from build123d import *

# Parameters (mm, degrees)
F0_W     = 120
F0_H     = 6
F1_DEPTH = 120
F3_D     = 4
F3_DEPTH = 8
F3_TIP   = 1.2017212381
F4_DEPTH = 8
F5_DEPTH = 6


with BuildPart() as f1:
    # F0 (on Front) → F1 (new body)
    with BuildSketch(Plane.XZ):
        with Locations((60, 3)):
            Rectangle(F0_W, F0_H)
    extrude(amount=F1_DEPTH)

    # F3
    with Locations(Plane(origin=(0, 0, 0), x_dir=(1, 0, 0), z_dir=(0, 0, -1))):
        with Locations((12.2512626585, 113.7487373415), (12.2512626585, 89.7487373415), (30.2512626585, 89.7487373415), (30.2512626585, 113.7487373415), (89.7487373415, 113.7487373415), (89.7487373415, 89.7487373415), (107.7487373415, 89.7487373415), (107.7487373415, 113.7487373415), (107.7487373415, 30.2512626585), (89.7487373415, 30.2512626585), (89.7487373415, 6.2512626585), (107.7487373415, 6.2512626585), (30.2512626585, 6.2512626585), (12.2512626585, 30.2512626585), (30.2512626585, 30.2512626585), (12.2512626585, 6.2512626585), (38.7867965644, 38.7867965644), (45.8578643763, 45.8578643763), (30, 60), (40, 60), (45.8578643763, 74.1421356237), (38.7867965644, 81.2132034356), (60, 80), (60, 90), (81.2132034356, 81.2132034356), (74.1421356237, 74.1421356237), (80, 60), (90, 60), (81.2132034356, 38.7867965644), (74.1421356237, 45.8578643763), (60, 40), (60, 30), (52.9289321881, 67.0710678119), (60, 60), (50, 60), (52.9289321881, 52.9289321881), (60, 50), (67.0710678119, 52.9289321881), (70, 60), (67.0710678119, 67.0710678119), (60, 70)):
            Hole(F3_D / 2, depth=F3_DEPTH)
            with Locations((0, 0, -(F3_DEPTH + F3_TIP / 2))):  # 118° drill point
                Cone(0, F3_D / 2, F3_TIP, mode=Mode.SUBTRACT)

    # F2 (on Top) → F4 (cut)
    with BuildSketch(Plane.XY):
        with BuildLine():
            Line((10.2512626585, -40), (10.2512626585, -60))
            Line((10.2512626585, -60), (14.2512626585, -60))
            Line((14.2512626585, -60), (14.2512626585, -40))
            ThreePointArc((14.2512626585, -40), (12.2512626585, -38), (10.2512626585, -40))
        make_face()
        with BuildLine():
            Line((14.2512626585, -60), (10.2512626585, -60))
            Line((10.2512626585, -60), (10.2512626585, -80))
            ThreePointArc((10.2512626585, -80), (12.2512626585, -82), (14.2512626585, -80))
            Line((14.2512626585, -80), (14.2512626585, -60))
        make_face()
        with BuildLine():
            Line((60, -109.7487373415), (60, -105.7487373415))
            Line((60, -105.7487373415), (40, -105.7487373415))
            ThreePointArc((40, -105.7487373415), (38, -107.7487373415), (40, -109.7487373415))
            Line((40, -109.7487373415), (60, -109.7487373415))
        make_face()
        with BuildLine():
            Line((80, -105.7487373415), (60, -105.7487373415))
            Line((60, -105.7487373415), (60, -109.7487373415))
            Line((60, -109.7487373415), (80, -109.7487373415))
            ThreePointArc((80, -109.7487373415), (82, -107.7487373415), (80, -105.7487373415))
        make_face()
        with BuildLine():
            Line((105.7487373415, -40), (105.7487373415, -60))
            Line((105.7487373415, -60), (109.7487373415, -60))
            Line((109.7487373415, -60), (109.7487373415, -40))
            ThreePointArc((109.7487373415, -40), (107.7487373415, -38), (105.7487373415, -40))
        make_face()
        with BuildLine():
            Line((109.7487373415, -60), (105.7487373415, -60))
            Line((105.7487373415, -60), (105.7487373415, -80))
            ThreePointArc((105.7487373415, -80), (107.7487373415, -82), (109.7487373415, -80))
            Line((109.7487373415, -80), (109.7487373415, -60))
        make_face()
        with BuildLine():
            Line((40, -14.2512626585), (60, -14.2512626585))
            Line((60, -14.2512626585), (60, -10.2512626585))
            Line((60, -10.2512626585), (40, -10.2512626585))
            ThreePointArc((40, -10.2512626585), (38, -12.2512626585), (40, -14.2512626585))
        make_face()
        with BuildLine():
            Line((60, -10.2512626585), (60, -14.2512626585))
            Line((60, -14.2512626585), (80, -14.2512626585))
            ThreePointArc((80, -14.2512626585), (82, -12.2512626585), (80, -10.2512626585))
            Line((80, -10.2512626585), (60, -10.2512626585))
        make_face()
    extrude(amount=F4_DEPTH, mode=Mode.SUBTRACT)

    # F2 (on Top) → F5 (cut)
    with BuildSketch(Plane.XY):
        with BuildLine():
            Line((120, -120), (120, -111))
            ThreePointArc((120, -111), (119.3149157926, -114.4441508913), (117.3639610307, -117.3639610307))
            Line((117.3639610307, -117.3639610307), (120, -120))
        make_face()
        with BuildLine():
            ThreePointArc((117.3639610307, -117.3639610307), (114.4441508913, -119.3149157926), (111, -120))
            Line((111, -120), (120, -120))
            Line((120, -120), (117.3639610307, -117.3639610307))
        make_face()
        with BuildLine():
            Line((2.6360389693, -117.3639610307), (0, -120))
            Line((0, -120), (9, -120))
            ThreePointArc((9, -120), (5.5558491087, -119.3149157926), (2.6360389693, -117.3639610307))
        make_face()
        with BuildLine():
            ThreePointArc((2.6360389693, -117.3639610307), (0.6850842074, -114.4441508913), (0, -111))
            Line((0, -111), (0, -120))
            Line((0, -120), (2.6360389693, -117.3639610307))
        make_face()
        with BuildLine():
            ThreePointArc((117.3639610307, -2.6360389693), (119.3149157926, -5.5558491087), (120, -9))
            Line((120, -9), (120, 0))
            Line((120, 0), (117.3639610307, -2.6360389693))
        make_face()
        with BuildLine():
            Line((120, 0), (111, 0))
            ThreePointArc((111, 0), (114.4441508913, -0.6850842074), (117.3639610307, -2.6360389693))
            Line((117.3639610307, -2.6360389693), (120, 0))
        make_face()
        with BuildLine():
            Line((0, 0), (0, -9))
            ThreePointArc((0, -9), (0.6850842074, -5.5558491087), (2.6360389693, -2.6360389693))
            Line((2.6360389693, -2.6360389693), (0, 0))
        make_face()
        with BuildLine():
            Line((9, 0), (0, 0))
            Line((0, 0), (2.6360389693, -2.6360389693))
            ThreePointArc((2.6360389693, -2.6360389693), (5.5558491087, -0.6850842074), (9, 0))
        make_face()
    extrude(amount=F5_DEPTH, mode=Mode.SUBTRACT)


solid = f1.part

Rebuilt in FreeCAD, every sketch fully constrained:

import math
import FreeCAD as App
import Part
import Sketcher

V = App.Vector

doc = App.newDocument("Part")
body = doc.addObject("PartDesign::Body", "Body")

sketch1 = body.newObject("Sketcher::SketchObject", "Sketch")
sketch1.AttachmentSupport = (doc.getObject("XZ_Plane"), [""])
sketch1.MapMode = "FlatFace"
sketch1.addGeometry(Part.LineSegment(V(0, 6, 0), V(0, 0, 0)), False)
sketch1.addGeometry(Part.LineSegment(V(0, 0, 0), V(120, 0, 0)), False)
sketch1.addGeometry(Part.LineSegment(V(120, 0, 0), V(120, 6, 0)), False)
sketch1.addGeometry(Part.LineSegment(V(120, 6, 0), V(0, 6, 0)), False)
sketch1.addConstraint(Sketcher.Constraint("Coincident", 0, 2, 1, 1))
sketch1.addConstraint(Sketcher.Constraint("Coincident", 1, 2, 2, 1))
sketch1.addConstraint(Sketcher.Constraint("Coincident", 2, 2, 3, 1))
sketch1.addConstraint(Sketcher.Constraint("Coincident", 3, 2, 0, 1))
sketch1.addConstraint(Sketcher.Constraint("Vertical", 0))
sketch1.addConstraint(Sketcher.Constraint("Horizontal", 1))
sketch1.addConstraint(Sketcher.Constraint("Vertical", 2))
sketch1.addConstraint(Sketcher.Constraint("Horizontal", 3))
sketch1.addConstraint(Sketcher.Constraint("Coincident", 0, 2, -1, 1))
sketch1.addConstraint(Sketcher.Constraint("DistanceX", 1, 1, 1, 2, 120.0))
sketch1.addConstraint(Sketcher.Constraint("DistanceY", 0, 2, 0, 1, 6.0))
pad1 = body.newObject("PartDesign::Pad", "Pad")
pad1.Profile = sketch1
pad1.Length = 120

sketch2 = body.newObject("Sketcher::SketchObject", "Sketch001")
sketch2.AttachmentSupport = (doc.getObject("XY_Plane"), [""])
sketch2.MapMode = "FlatFace"
sketch2.addGeometry(Part.Circle(V(12.251263, -113.748737, 0), V(0, 0, 1), 2), False)
sketch2.addGeometry(Part.Circle(V(12.251263, -89.748737, 0), V(0, 0, 1), 2), False)
sketch2.addGeometry(Part.Circle(V(30.251263, -89.748737, 0), V(0, 0, 1), 2), False)
sketch2.addGeometry(Part.Circle(V(30.251263, -113.748737, 0), V(0, 0, 1), 2), False)
sketch2.addGeometry(Part.Circle(V(89.748737, -113.748737, 0), V(0, 0, 1), 2), False)
sketch2.addGeometry(Part.Circle(V(89.748737, -89.748737, 0), V(0, 0, 1), 2), False)
sketch2.addGeometry(Part.Circle(V(107.748737, -89.748737, 0), V(0, 0, 1), 2), False)
sketch2.addGeometry(Part.Circle(V(107.748737, -113.748737, 0), V(0, 0, 1), 2), False)
sketch2.addGeometry(Part.Circle(V(107.748737, -30.251263, 0), V(0, 0, 1), 2), False)
sketch2.addGeometry(Part.Circle(V(89.748737, -30.251263, 0), V(0, 0, 1), 2), False)
sketch2.addGeometry(Part.Circle(V(89.748737, -6.251263, 0), V(0, 0, 1), 2), False)
sketch2.addGeometry(Part.Circle(V(107.748737, -6.251263, 0), V(0, 0, 1), 2), False)
sketch2.addGeometry(Part.Circle(V(30.251263, -6.251263, 0), V(0, 0, 1), 2), False)
sketch2.addGeometry(Part.Circle(V(12.251263, -30.251263, 0), V(0, 0, 1), 2), False)
sketch2.addGeometry(Part.Circle(V(30.251263, -30.251263, 0), V(0, 0, 1), 2), False)
sketch2.addGeometry(Part.Circle(V(12.251263, -6.251263, 0), V(0, 0, 1), 2), False)
sketch2.addGeometry(Part.Circle(V(38.786797, -38.786797, 0), V(0, 0, 1), 2), False)
sketch2.addGeometry(Part.Circle(V(45.857864, -45.857864, 0), V(0, 0, 1), 2), False)
sketch2.addGeometry(Part.Circle(V(30, -60, 0), V(0, 0, 1), 2), False)
sketch2.addGeometry(Part.Circle(V(40, -60, 0), V(0, 0, 1), 2), False)
sketch2.addGeometry(Part.Circle(V(45.857864, -74.142136, 0), V(0, 0, 1), 2), False)
sketch2.addGeometry(Part.Circle(V(38.786797, -81.213203, 0), V(0, 0, 1), 2), False)
sketch2.addGeometry(Part.Circle(V(60, -80, 0), V(0, 0, 1), 2), False)
sketch2.addGeometry(Part.Circle(V(60, -90, 0), V(0, 0, 1), 2), False)
sketch2.addGeometry(Part.Circle(V(81.213203, -81.213203, 0), V(0, 0, 1), 2), False)
sketch2.addGeometry(Part.Circle(V(74.142136, -74.142136, 0), V(0, 0, 1), 2), False)
sketch2.addGeometry(Part.Circle(V(80, -60, 0), V(0, 0, 1), 2), False)
sketch2.addGeometry(Part.Circle(V(90, -60, 0), V(0, 0, 1), 2), False)
sketch2.addGeometry(Part.Circle(V(81.213203, -38.786797, 0), V(0, 0, 1), 2), False)
sketch2.addGeometry(Part.Circle(V(74.142136, -45.857864, 0), V(0, 0, 1), 2), False)
sketch2.addGeometry(Part.Circle(V(60, -40, 0), V(0, 0, 1), 2), False)
sketch2.addGeometry(Part.Circle(V(60, -30, 0), V(0, 0, 1), 2), False)
sketch2.addGeometry(Part.Circle(V(52.928932, -67.071068, 0), V(0, 0, 1), 2), False)
sketch2.addGeometry(Part.Circle(V(60, -60, 0), V(0, 0, 1), 2), False)
sketch2.addGeometry(Part.Circle(V(50, -60, 0), V(0, 0, 1), 2), False)
sketch2.addGeometry(Part.Circle(V(52.928932, -52.928932, 0), V(0, 0, 1), 2), False)
sketch2.addGeometry(Part.Circle(V(60, -50, 0), V(0, 0, 1), 2), False)
sketch2.addGeometry(Part.Circle(V(67.071068, -52.928932, 0), V(0, 0, 1), 2), False)
sketch2.addGeometry(Part.Circle(V(70, -60, 0), V(0, 0, 1), 2), False)
sketch2.addGeometry(Part.Circle(V(67.071068, -67.071068, 0), V(0, 0, 1), 2), False)
sketch2.addGeometry(Part.Circle(V(60, -70, 0), V(0, 0, 1), 2), False)
sketch2.addConstraint(Sketcher.Constraint("Equal", 0, 1))
sketch2.addConstraint(Sketcher.Constraint("Equal", 1, 2))
sketch2.addConstraint(Sketcher.Constraint("Equal", 2, 3))
sketch2.addConstraint(Sketcher.Constraint("Equal", 3, 4))
sketch2.addConstraint(Sketcher.Constraint("Equal", 4, 5))
sketch2.addConstraint(Sketcher.Constraint("Equal", 5, 6))
sketch2.addConstraint(Sketcher.Constraint("Equal", 6, 7))
sketch2.addConstraint(Sketcher.Constraint("Equal", 7, 8))
sketch2.addConstraint(Sketcher.Constraint("Equal", 8, 9))
sketch2.addConstraint(Sketcher.Constraint("Equal", 9, 10))
sketch2.addConstraint(Sketcher.Constraint("Equal", 10, 11))
sketch2.addConstraint(Sketcher.Constraint("Equal", 11, 12))
sketch2.addConstraint(Sketcher.Constraint("Equal", 12, 13))
sketch2.addConstraint(Sketcher.Constraint("Equal", 13, 14))
sketch2.addConstraint(Sketcher.Constraint("Equal", 14, 15))
sketch2.addConstraint(Sketcher.Constraint("Equal", 15, 16))
sketch2.addConstraint(Sketcher.Constraint("Equal", 16, 17))
sketch2.addConstraint(Sketcher.Constraint("Equal", 17, 18))
sketch2.addConstraint(Sketcher.Constraint("Equal", 18, 19))
sketch2.addConstraint(Sketcher.Constraint("Equal", 19, 20))
sketch2.addConstraint(Sketcher.Constraint("Equal", 20, 21))
sketch2.addConstraint(Sketcher.Constraint("Equal", 21, 22))
sketch2.addConstraint(Sketcher.Constraint("Equal", 22, 23))
sketch2.addConstraint(Sketcher.Constraint("Equal", 23, 24))
sketch2.addConstraint(Sketcher.Constraint("Equal", 24, 25))
sketch2.addConstraint(Sketcher.Constraint("Equal", 25, 26))
sketch2.addConstraint(Sketcher.Constraint("Equal", 26, 27))
sketch2.addConstraint(Sketcher.Constraint("Equal", 27, 28))
sketch2.addConstraint(Sketcher.Constraint("Equal", 28, 29))
sketch2.addConstraint(Sketcher.Constraint("Equal", 29, 30))
sketch2.addConstraint(Sketcher.Constraint("Equal", 30, 31))
sketch2.addConstraint(Sketcher.Constraint("Equal", 31, 32))
sketch2.addConstraint(Sketcher.Constraint("Equal", 32, 33))
sketch2.addConstraint(Sketcher.Constraint("Equal", 33, 34))
sketch2.addConstraint(Sketcher.Constraint("Equal", 34, 35))
sketch2.addConstraint(Sketcher.Constraint("Equal", 35, 36))
sketch2.addConstraint(Sketcher.Constraint("Equal", 36, 37))
sketch2.addConstraint(Sketcher.Constraint("Equal", 37, 38))
sketch2.addConstraint(Sketcher.Constraint("Equal", 38, 39))
sketch2.addConstraint(Sketcher.Constraint("Equal", 39, 40))
sketch2.addConstraint(Sketcher.Constraint("Horizontal", 1, 3, 2, 3))
sketch2.addConstraint(Sketcher.Constraint("Horizontal", 0, 3, 3, 3))
sketch2.addConstraint(Sketcher.Constraint("Horizontal", 3, 3, 4, 3))
sketch2.addConstraint(Sketcher.Constraint("Horizontal", 2, 3, 5, 3))
sketch2.addConstraint(Sketcher.Constraint("Horizontal", 5, 3, 6, 3))
sketch2.addConstraint(Sketcher.Constraint("Horizontal", 4, 3, 7, 3))
sketch2.addConstraint(Sketcher.Constraint("Horizontal", 8, 3, 9, 3))
sketch2.addConstraint(Sketcher.Constraint("Horizontal", 10, 3, 11, 3))
sketch2.addConstraint(Sketcher.Constraint("Horizontal", 11, 3, 12, 3))
sketch2.addConstraint(Sketcher.Constraint("Horizontal", 9, 3, 13, 3))
sketch2.addConstraint(Sketcher.Constraint("Horizontal", 13, 3, 14, 3))
sketch2.addConstraint(Sketcher.Constraint("Horizontal", 12, 3, 15, 3))
sketch2.addConstraint(Sketcher.Constraint("Horizontal", 18, 3, 19, 3))
sketch2.addConstraint(Sketcher.Constraint("Horizontal", 21, 3, 24, 3))
sketch2.addConstraint(Sketcher.Constraint("Horizontal", 20, 3, 25, 3))
sketch2.addConstraint(Sketcher.Constraint("Horizontal", 19, 3, 26, 3))
sketch2.addConstraint(Sketcher.Constraint("Horizontal", 26, 3, 27, 3))
sketch2.addConstraint(Sketcher.Constraint("Horizontal", 16, 3, 28, 3))
sketch2.addConstraint(Sketcher.Constraint("Horizontal", 17, 3, 29, 3))
sketch2.addConstraint(Sketcher.Constraint("Horizontal", 27, 3, 33, 3))
sketch2.addConstraint(Sketcher.Constraint("Horizontal", 33, 3, 34, 3))
sketch2.addConstraint(Sketcher.Constraint("Horizontal", 35, 3, 37, 3))
sketch2.addConstraint(Sketcher.Constraint("Horizontal", 34, 3, 38, 3))
sketch2.addConstraint(Sketcher.Constraint("Horizontal", 32, 3, 39, 3))
sketch2.addConstraint(Sketcher.Constraint("Vertical", 0, 3, 1, 3))
sketch2.addConstraint(Sketcher.Constraint("Vertical", 2, 3, 3, 3))
sketch2.addConstraint(Sketcher.Constraint("Vertical", 4, 3, 5, 3))
sketch2.addConstraint(Sketcher.Constraint("Vertical", 6, 3, 7, 3))
sketch2.addConstraint(Sketcher.Constraint("Vertical", 7, 3, 8, 3))
sketch2.addConstraint(Sketcher.Constraint("Vertical", 5, 3, 9, 3))
sketch2.addConstraint(Sketcher.Constraint("Vertical", 9, 3, 10, 3))
sketch2.addConstraint(Sketcher.Constraint("Vertical", 8, 3, 11, 3))
sketch2.addConstraint(Sketcher.Constraint("Vertical", 3, 3, 12, 3))
sketch2.addConstraint(Sketcher.Constraint("Vertical", 1, 3, 13, 3))
sketch2.addConstraint(Sketcher.Constraint("Vertical", 12, 3, 14, 3))
sketch2.addConstraint(Sketcher.Constraint("Vertical", 13, 3, 15, 3))
sketch2.addConstraint(Sketcher.Constraint("Vertical", 17, 3, 20, 3))
sketch2.addConstraint(Sketcher.Constraint("Vertical", 16, 3, 21, 3))
sketch2.addConstraint(Sketcher.Constraint("Vertical", 22, 3, 23, 3))
sketch2.addConstraint(Sketcher.Constraint("Vertical", 24, 3, 28, 3))
sketch2.addConstraint(Sketcher.Constraint("Vertical", 25, 3, 29, 3))
sketch2.addConstraint(Sketcher.Constraint("Vertical", 23, 3, 30, 3))
sketch2.addConstraint(Sketcher.Constraint("Vertical", 30, 3, 31, 3))
sketch2.addConstraint(Sketcher.Constraint("Vertical", 31, 3, 33, 3))
sketch2.addConstraint(Sketcher.Constraint("Vertical", 32, 3, 35, 3))
sketch2.addConstraint(Sketcher.Constraint("Vertical", 33, 3, 36, 3))
sketch2.addConstraint(Sketcher.Constraint("Vertical", 37, 3, 39, 3))
sketch2.addConstraint(Sketcher.Constraint("Vertical", 36, 3, 40, 3))
sketch2.addConstraint(Sketcher.Constraint("Diameter", 0, 4.0))
sketch2.addConstraint(Sketcher.Constraint("DistanceX", -1, 1, 18, 3, 30.0))
sketch2.addConstraint(Sketcher.Constraint("DistanceY", 18, 3, -1, 1, 60.0))
sketch2.addConstraint(Sketcher.Constraint("DistanceX", -1, 1, 19, 3, 40.0))
sketch2.addConstraint(Sketcher.Constraint("DistanceX", -1, 1, 22, 3, 60.0))
sketch2.addConstraint(Sketcher.Constraint("DistanceY", 22, 3, -1, 1, 80.0))
sketch2.addConstraint(Sketcher.Constraint("DistanceY", 23, 3, -1, 1, 90.0))
sketch2.addConstraint(Sketcher.Constraint("DistanceX", -1, 1, 26, 3, 80.0))
sketch2.addConstraint(Sketcher.Constraint("DistanceX", -1, 1, 27, 3, 90.0))
sketch2.addConstraint(Sketcher.Constraint("DistanceY", 30, 3, -1, 1, 40.0))
sketch2.addConstraint(Sketcher.Constraint("DistanceY", 31, 3, -1, 1, 30.0))
sketch2.addConstraint(Sketcher.Constraint("DistanceX", -1, 1, 34, 3, 50.0))
sketch2.addConstraint(Sketcher.Constraint("DistanceY", 36, 3, -1, 1, 50.0))
sketch2.addConstraint(Sketcher.Constraint("DistanceX", -1, 1, 38, 3, 70.0))
sketch2.addConstraint(Sketcher.Constraint("DistanceY", 40, 3, -1, 1, 70.0))
sketch2.addConstraint(Sketcher.Constraint("DistanceY", 0, 3, 1, 3, 24.0))
sketch2.addConstraint(Sketcher.Constraint("DistanceX", 1, 3, 2, 3, 18.0))
sketch2.addConstraint(Sketcher.Constraint("DistanceX", 5, 3, 6, 3, 18.0))
sketch2.addConstraint(Sketcher.Constraint("DistanceY", 9, 3, 10, 3, 24.0))
sketch2.addConstraint(Sketcher.Constraint("DistanceX", 14, 3, 17, 3, 15.606602))
sketch2.addConstraint(Sketcher.Constraint("DistanceY", 17, 3, 14, 3, 15.606602))
sketch2.addConstraint(Sketcher.Constraint("DistanceY", 2, 3, 20, 3, 15.606602))
sketch2.addConstraint(Sketcher.Constraint("DistanceX", 25, 3, 5, 3, 15.606602))
sketch2.addConstraint(Sketcher.Constraint("DistanceY", 2, 3, 16, 3, 50.961941))
sketch2.addConstraint(Sketcher.Constraint("DistanceY", 20, 3, 17, 3, 28.284271))
sketch2.addConstraint(Sketcher.Constraint("DistanceX", 20, 3, 25, 3, 28.284271))
sketch2.addConstraint(Sketcher.Constraint("DistanceX", -1, 1, 0, 3, 12.251263))
sketch2.addConstraint(Sketcher.Constraint("DistanceY", 0, 3, -1, 1, 113.748737))
sketch2.addConstraint(Sketcher.Constraint("DistanceX", -1, 1, 16, 3, 38.786797))
sketch2.addConstraint(Sketcher.Constraint("DistanceY", 21, 3, -1, 1, 81.213203))
sketch2.addConstraint(Sketcher.Constraint("DistanceX", -1, 1, 24, 3, 81.213203))
sketch2.addConstraint(Sketcher.Constraint("DistanceX", -1, 1, 32, 3, 52.928932))
sketch2.addConstraint(Sketcher.Constraint("DistanceY", 32, 3, -1, 1, 67.071068))
sketch2.addConstraint(Sketcher.Constraint("DistanceY", 35, 3, -1, 1, 52.928932))
sketch2.addConstraint(Sketcher.Constraint("DistanceX", -1, 1, 37, 3, 67.071068))
doc.recompute()
hole = body.newObject("PartDesign::Hole", "Hole")
hole.Profile = sketch2
hole.ThreadType = "None"
hole.Diameter = 4
hole.DepthType = "Dimension"
hole.Depth = 8
hole.DrillPoint = "Angled"
hole.DrillPointAngle = 118
hole.Reversed = True

sketch3 = body.newObject("Sketcher::SketchObject", "Sketch002")
sketch3.AttachmentSupport = (doc.getObject("XY_Plane"), [""])
sketch3.MapMode = "FlatFace"
sketch3.addGeometry(Part.LineSegment(V(10.251263, -40, 0), V(10.251263, -80, 0)), False)
sketch3.addGeometry(Part.ArcOfCircle(Part.Circle(V(12.251263, -80, 0), V(0, 0, 1), 2), math.radians(180), math.radians(360)), False)
sketch3.addGeometry(Part.LineSegment(V(14.251263, -80, 0), V(14.251263, -40, 0)), False)
sketch3.addGeometry(Part.ArcOfCircle(Part.Circle(V(12.251263, -40, 0), V(0, 0, 1), 2), math.radians(0), math.radians(180)), False)
sketch3.addGeometry(Part.ArcOfCircle(Part.Circle(V(40, -107.748737, 0), V(0, 0, 1), 2), math.radians(90), math.radians(270)), False)
sketch3.addGeometry(Part.LineSegment(V(40, -109.748737, 0), V(80, -109.748737, 0)), False)
sketch3.addGeometry(Part.ArcOfCircle(Part.Circle(V(80, -107.748737, 0), V(0, 0, 1), 2), math.radians(-90), math.radians(90)), False)
sketch3.addGeometry(Part.LineSegment(V(80, -105.748737, 0), V(40, -105.748737, 0)), False)
sketch3.addGeometry(Part.LineSegment(V(105.748737, -40, 0), V(105.748737, -80, 0)), False)
sketch3.addGeometry(Part.ArcOfCircle(Part.Circle(V(107.748737, -80, 0), V(0, 0, 1), 2), math.radians(180), math.radians(360)), False)
sketch3.addGeometry(Part.LineSegment(V(109.748737, -80, 0), V(109.748737, -40, 0)), False)
sketch3.addGeometry(Part.ArcOfCircle(Part.Circle(V(107.748737, -40, 0), V(0, 0, 1), 2), math.radians(0), math.radians(180)), False)
sketch3.addGeometry(Part.LineSegment(V(40, -14.251263, 0), V(80, -14.251263, 0)), False)
sketch3.addGeometry(Part.ArcOfCircle(Part.Circle(V(80, -12.251263, 0), V(0, 0, 1), 2), math.radians(-90), math.radians(90)), False)
sketch3.addGeometry(Part.LineSegment(V(80, -10.251263, 0), V(40, -10.251263, 0)), False)
sketch3.addGeometry(Part.ArcOfCircle(Part.Circle(V(40, -12.251263, 0), V(0, 0, 1), 2), math.radians(90), math.radians(270)), False)
sketch3.addConstraint(Sketcher.Constraint("Tangent", 0, 2, 1, 1))
sketch3.addConstraint(Sketcher.Constraint("Tangent", 1, 2, 2, 1))
sketch3.addConstraint(Sketcher.Constraint("Tangent", 2, 2, 3, 1))
sketch3.addConstraint(Sketcher.Constraint("Tangent", 3, 2, 0, 1))
sketch3.addConstraint(Sketcher.Constraint("Tangent", 4, 2, 5, 1))
sketch3.addConstraint(Sketcher.Constraint("Tangent", 5, 2, 6, 1))
sketch3.addConstraint(Sketcher.Constraint("Tangent", 6, 2, 7, 1))
sketch3.addConstraint(Sketcher.Constraint("Tangent", 7, 2, 4, 1))
sketch3.addConstraint(Sketcher.Constraint("Tangent", 8, 2, 9, 1))
sketch3.addConstraint(Sketcher.Constraint("Tangent", 9, 2, 10, 1))
sketch3.addConstraint(Sketcher.Constraint("Tangent", 10, 2, 11, 1))
sketch3.addConstraint(Sketcher.Constraint("Tangent", 11, 2, 8, 1))
sketch3.addConstraint(Sketcher.Constraint("Tangent", 12, 2, 13, 1))
sketch3.addConstraint(Sketcher.Constraint("Tangent", 13, 2, 14, 1))
sketch3.addConstraint(Sketcher.Constraint("Tangent", 14, 2, 15, 1))
sketch3.addConstraint(Sketcher.Constraint("Tangent", 15, 2, 12, 1))
sketch3.addConstraint(Sketcher.Constraint("Vertical", 0))
sketch3.addConstraint(Sketcher.Constraint("Vertical", 2))
sketch3.addConstraint(Sketcher.Constraint("Horizontal", 5))
sketch3.addConstraint(Sketcher.Constraint("Horizontal", 7))
sketch3.addConstraint(Sketcher.Constraint("Vertical", 8))
sketch3.addConstraint(Sketcher.Constraint("Vertical", 10))
sketch3.addConstraint(Sketcher.Constraint("Horizontal", 12))
sketch3.addConstraint(Sketcher.Constraint("Horizontal", 14))
sketch3.addConstraint(Sketcher.Constraint("Equal", 3, 4))
sketch3.addConstraint(Sketcher.Constraint("Equal", 6, 9))
sketch3.addConstraint(Sketcher.Constraint("Equal", 11, 13))
sketch3.addConstraint(Sketcher.Constraint("Horizontal", 1, 3, 9, 3))
sketch3.addConstraint(Sketcher.Constraint("Horizontal", 3, 3, 11, 3))
sketch3.addConstraint(Sketcher.Constraint("Vertical", 6, 3, 13, 3))
sketch3.addConstraint(Sketcher.Constraint("Vertical", 4, 3, 15, 3))
sketch3.addConstraint(Sketcher.Constraint("Equal", 14, 0))
sketch3.addConstraint(Sketcher.Constraint("Radius", 1, 2.0))
sketch3.addConstraint(Sketcher.Constraint("DistanceX", 5, 1, 5, 2, 40.0))
sketch3.addConstraint(Sketcher.Constraint("DistanceY", 1, 3, -1, 1, 80.0))
sketch3.addConstraint(Sketcher.Constraint("DistanceX", -1, 1, 4, 3, 40.0))
sketch3.addConstraint(Sketcher.Constraint("DistanceX", -1, 1, 1, 3, 12.251263))
sketch3.addConstraint(Sketcher.Constraint("DistanceY", 4, 3, -1, 1, 107.748737))
sketch3.addConstraint(Sketcher.Constraint("DistanceX", -1, 1, 9, 3, 107.748737))
sketch3.addConstraint(Sketcher.Constraint("DistanceY", 13, 3, -1, 1, 12.251263))
pocket1 = body.newObject("PartDesign::Pocket", "Pocket")
pocket1.Profile = sketch3
pocket1.Length = 8
pocket1.Reversed = True

sketch4 = body.newObject("Sketcher::SketchObject", "Sketch003")
sketch4.AttachmentSupport = (doc.getObject("XY_Plane"), [""])
sketch4.MapMode = "FlatFace"
sketch4.addGeometry(Part.LineSegment(V(120, -120, 0), V(120, -111, 0)), False)
sketch4.addGeometry(Part.ArcOfCircle(Part.Circle(V(111, -111, 0), V(0, 0, 1), 9), math.radians(-45), math.radians(0)), False)
sketch4.addGeometry(Part.ArcOfCircle(Part.Circle(V(111, -111, 0), V(0, 0, 1), 9), math.radians(-90), math.radians(-45)), False)
sketch4.addGeometry(Part.LineSegment(V(111, -120, 0), V(120, -120, 0)), False)
sketch4.addGeometry(Part.LineSegment(V(0, -120, 0), V(9, -120, 0)), False)
sketch4.addGeometry(Part.ArcOfCircle(Part.Circle(V(9, -111, 0), V(0, 0, 1), 9), math.radians(-135), math.radians(-90)), False)
sketch4.addGeometry(Part.ArcOfCircle(Part.Circle(V(9, -111, 0), V(0, 0, 1), 9), math.radians(180), math.radians(225)), False)
sketch4.addGeometry(Part.LineSegment(V(0, -111, 0), V(0, -120, 0)), False)
sketch4.addGeometry(Part.ArcOfCircle(Part.Circle(V(111, -9, 0), V(0, 0, 1), 9), math.radians(0), math.radians(45)), False)
sketch4.addGeometry(Part.LineSegment(V(120, -9, 0), V(120, 0, 0)), False)
sketch4.addGeometry(Part.LineSegment(V(120, 0, 0), V(111, 0, 0)), False)
sketch4.addGeometry(Part.ArcOfCircle(Part.Circle(V(111, -9, 0), V(0, 0, 1), 9), math.radians(45), math.radians(90)), False)
sketch4.addGeometry(Part.LineSegment(V(0, 0, 0), V(0, -9, 0)), False)
sketch4.addGeometry(Part.ArcOfCircle(Part.Circle(V(9, -9, 0), V(0, 0, 1), 9), math.radians(135), math.radians(180)), False)
sketch4.addGeometry(Part.ArcOfCircle(Part.Circle(V(9, -9, 0), V(0, 0, 1), 9), math.radians(90), math.radians(135)), False)
sketch4.addGeometry(Part.LineSegment(V(9, 0, 0), V(0, 0, 0)), False)
sketch4.addConstraint(Sketcher.Constraint("Tangent", 0, 2, 1, 2))
sketch4.addConstraint(Sketcher.Constraint("Tangent", 1, 1, 2, 2))
sketch4.addConstraint(Sketcher.Constraint("Tangent", 2, 1, 3, 1))
sketch4.addConstraint(Sketcher.Constraint("Coincident", 3, 2, 0, 1))
sketch4.addConstraint(Sketcher.Constraint("Tangent", 4, 2, 5, 2))
sketch4.addConstraint(Sketcher.Constraint("Tangent", 5, 1, 6, 2))
sketch4.addConstraint(Sketcher.Constraint("Tangent", 6, 1, 7, 1))
sketch4.addConstraint(Sketcher.Constraint("Coincident", 7, 2, 4, 1))
sketch4.addConstraint(Sketcher.Constraint("Tangent", 8, 1, 9, 1))
sketch4.addConstraint(Sketcher.Constraint("Coincident", 9, 2, 10, 1))
sketch4.addConstraint(Sketcher.Constraint("Tangent", 10, 2, 11, 2))
sketch4.addConstraint(Sketcher.Constraint("Tangent", 11, 1, 8, 2))
sketch4.addConstraint(Sketcher.Constraint("Tangent", 12, 2, 13, 2))
sketch4.addConstraint(Sketcher.Constraint("Tangent", 13, 1, 14, 2))
sketch4.addConstraint(Sketcher.Constraint("Tangent", 14, 1, 15, 1))
sketch4.addConstraint(Sketcher.Constraint("Coincident", 15, 2, 12, 1))
sketch4.addConstraint(Sketcher.Constraint("Vertical", 0))
sketch4.addConstraint(Sketcher.Constraint("Horizontal", 3))
sketch4.addConstraint(Sketcher.Constraint("Horizontal", 4))
sketch4.addConstraint(Sketcher.Constraint("Vertical", 7))
sketch4.addConstraint(Sketcher.Constraint("Vertical", 9))
sketch4.addConstraint(Sketcher.Constraint("Horizontal", 10))
sketch4.addConstraint(Sketcher.Constraint("Vertical", 12))
sketch4.addConstraint(Sketcher.Constraint("Horizontal", 15))
sketch4.addConstraint(Sketcher.Constraint("Coincident", 15, 2, -1, 1))
sketch4.addConstraint(Sketcher.Constraint("Equal", 1, 2))
sketch4.addConstraint(Sketcher.Constraint("Equal", 2, 5))
sketch4.addConstraint(Sketcher.Constraint("Equal", 5, 6))
sketch4.addConstraint(Sketcher.Constraint("Equal", 6, 8))
sketch4.addConstraint(Sketcher.Constraint("Equal", 8, 11))
sketch4.addConstraint(Sketcher.Constraint("Equal", 11, 13))
sketch4.addConstraint(Sketcher.Constraint("Equal", 13, 14))
sketch4.addConstraint(Sketcher.Constraint("PointOnObject", 6, 1, -2))
sketch4.addConstraint(Sketcher.Constraint("PointOnObject", 9, 2, -1))
sketch4.addConstraint(Sketcher.Constraint("Horizontal", 2, 3, 5, 3))
sketch4.addConstraint(Sketcher.Constraint("Horizontal", 1, 1, 5, 1))
sketch4.addConstraint(Sketcher.Constraint("Horizontal", 11, 1, 13, 1))
sketch4.addConstraint(Sketcher.Constraint("Vertical", 2, 3, 8, 3))
sketch4.addConstraint(Sketcher.Constraint("Vertical", 1, 1, 11, 1))
sketch4.addConstraint(Sketcher.Constraint("Radius", 1, 9.0))
sketch4.addConstraint(Sketcher.Constraint("DistanceX", -1, 1, 1, 3, 111.0))
sketch4.addConstraint(Sketcher.Constraint("DistanceY", 1, 3, -1, 1, 111.0))
sketch4.addConstraint(Sketcher.Constraint("DistanceX", -1, 1, 1, 1, 117.363961))
pocket2 = body.newObject("PartDesign::Pocket", "Pocket001")
pocket2.Profile = sketch4
pocket2.Length = 6
pocket2.Reversed = True

doc.recompute()
